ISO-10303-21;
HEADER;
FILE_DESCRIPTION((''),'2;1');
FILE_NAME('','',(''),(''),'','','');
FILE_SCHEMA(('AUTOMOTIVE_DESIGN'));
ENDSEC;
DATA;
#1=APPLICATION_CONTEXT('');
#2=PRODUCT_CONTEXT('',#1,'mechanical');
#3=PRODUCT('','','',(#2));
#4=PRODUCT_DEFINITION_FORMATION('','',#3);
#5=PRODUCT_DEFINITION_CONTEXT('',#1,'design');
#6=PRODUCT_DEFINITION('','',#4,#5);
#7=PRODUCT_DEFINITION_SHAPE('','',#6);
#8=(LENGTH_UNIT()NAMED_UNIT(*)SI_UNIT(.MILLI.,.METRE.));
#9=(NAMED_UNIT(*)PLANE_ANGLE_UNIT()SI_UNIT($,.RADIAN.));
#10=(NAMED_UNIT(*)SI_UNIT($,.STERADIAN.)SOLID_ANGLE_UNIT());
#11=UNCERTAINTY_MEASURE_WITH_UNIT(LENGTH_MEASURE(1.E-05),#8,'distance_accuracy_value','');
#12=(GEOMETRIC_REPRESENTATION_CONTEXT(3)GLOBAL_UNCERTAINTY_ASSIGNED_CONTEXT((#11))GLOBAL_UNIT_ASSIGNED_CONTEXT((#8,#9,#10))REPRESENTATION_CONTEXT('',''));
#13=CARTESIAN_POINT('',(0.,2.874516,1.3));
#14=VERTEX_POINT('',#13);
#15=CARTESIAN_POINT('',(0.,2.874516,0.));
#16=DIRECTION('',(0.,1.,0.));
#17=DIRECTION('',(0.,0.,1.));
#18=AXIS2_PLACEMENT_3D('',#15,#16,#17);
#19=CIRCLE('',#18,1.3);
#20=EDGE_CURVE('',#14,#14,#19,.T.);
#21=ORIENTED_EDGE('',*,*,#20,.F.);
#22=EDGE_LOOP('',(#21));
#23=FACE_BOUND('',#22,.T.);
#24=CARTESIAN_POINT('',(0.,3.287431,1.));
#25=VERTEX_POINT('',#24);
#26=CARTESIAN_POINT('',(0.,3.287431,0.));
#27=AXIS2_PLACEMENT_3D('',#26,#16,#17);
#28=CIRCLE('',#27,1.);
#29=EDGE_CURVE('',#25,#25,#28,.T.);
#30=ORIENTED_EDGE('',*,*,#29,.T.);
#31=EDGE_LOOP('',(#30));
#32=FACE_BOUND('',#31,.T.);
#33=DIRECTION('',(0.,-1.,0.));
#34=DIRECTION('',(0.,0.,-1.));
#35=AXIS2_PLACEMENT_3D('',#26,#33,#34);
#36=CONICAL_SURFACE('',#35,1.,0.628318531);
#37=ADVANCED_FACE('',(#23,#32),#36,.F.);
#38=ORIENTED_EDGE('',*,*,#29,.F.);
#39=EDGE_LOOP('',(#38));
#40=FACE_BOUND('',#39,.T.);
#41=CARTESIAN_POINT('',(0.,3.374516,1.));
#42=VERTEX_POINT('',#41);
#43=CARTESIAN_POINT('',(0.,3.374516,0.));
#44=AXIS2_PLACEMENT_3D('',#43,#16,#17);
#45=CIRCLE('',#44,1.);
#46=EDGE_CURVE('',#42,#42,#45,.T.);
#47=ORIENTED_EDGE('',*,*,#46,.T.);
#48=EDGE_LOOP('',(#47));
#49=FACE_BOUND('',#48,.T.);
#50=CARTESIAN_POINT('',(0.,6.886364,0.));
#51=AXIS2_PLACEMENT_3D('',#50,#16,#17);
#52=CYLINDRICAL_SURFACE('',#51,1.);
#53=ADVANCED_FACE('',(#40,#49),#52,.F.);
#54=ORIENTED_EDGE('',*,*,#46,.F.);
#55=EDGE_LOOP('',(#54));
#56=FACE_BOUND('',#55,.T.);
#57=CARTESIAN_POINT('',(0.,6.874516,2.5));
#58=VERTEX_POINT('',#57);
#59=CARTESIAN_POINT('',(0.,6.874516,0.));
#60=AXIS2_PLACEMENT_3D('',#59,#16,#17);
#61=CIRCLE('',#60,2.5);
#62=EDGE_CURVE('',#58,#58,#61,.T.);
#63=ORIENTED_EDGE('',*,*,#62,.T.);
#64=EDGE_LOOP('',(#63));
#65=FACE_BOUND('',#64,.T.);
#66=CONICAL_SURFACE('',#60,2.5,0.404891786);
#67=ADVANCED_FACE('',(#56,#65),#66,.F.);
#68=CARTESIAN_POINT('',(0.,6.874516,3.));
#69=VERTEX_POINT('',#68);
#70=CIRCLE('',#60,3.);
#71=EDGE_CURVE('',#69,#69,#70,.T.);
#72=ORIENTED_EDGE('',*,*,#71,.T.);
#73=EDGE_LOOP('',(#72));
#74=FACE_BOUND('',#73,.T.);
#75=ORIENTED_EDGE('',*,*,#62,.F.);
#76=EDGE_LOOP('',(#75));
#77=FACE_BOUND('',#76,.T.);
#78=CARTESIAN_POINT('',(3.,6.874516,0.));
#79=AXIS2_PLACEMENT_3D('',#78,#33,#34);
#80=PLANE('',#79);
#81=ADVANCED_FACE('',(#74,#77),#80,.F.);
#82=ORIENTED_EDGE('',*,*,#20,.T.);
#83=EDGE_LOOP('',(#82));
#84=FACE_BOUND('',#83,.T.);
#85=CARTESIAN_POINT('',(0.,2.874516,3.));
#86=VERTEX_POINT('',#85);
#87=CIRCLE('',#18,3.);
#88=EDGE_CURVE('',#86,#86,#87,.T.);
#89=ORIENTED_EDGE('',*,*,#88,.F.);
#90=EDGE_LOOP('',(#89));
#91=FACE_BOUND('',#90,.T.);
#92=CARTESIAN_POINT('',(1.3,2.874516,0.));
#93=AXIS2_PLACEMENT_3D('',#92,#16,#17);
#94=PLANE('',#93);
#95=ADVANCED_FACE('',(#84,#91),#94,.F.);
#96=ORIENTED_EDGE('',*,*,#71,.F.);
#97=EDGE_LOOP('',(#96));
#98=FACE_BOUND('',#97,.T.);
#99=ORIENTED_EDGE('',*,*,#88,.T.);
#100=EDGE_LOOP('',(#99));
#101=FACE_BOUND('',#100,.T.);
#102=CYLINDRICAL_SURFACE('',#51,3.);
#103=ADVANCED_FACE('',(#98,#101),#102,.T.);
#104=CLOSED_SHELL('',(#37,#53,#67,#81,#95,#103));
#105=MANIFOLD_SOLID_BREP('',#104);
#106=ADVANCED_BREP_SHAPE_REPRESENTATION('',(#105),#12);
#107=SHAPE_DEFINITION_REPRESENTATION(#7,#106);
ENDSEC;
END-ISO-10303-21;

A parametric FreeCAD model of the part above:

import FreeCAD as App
import Part
import Sketcher
from FreeCAD import Vector
Q = App.Units.Quantity


def add_polygon(sketch, points):
    """Adds a closed chain of lines whose ends are joined by coincident constraints."""
    first, n = sketch.GeometryCount, len(points)
    for a, b in zip(points, points[1:] + points[:1]):
        sketch.addGeometry(Part.LineSegment(App.Vector(*a, 0), App.Vector(*b, 0)), False)
    for i in range(n):
        sketch.addConstraint(Sketcher.Constraint("Coincident", first + i, 2, first + (i + 1) % n, 1))

doc = App.newDocument("Part")
body = doc.addObject("PartDesign::Body", "Body")

# Sketch on XY plane
sketch1 = doc.addObject("Sketcher::SketchObject", "Sketch")
body.addObject(sketch1)
sketch1.AttachmentSupport = (doc.XY_Plane, [""])
sketch1.MapMode = "FlatFace"
add_polygon(sketch1, [(1.3, 2.874516), (3, 2.874516), (3, 6.874516), (2.5, 6.874516), (1, 3.374516), (1, 3.287431)])  # lines 0-5
sketch1.addConstraint(Sketcher.Constraint("Horizontal", 0))
sketch1.addConstraint(Sketcher.Constraint("Vertical", 1))
sketch1.addConstraint(Sketcher.Constraint("Horizontal", 2))
sketch1.addConstraint(Sketcher.Constraint("Vertical", 4))
sketch1.addConstraint(Sketcher.Constraint("DistanceY", 1, 1, 1, 2, 4.0))
sketch1.addConstraint(Sketcher.Constraint("Angle", 5, Q("-54 deg")))
sketch1.addConstraint(Sketcher.Constraint("DistanceX", 0, 1, 0, 2, 1.7))
sketch1.addConstraint(Sketcher.Constraint("DistanceX", 2, 2, 2, 1, 0.5))
sketch1.addConstraint(Sketcher.Constraint("DistanceX", -1, 1, 0, 2, 3.0))
sketch1.addConstraint(Sketcher.Constraint("DistanceX", -1, 1, 3, 2, 1.0))
sketch1.addConstraint(Sketcher.Constraint("DistanceY", 0, 2, 3, 2, 0.5))
sketch1.addConstraint(Sketcher.Constraint("DistanceY", -1, 1, 4, 2, 3.287431))
revolution = doc.addObject("PartDesign::Revolution", "Revolution")
body.addObject(revolution)
revolution.Profile = sketch1
revolution.ReferenceAxis = (sketch1, ["V_Axis"])
revolution.Angle = 360

doc.recompute()
